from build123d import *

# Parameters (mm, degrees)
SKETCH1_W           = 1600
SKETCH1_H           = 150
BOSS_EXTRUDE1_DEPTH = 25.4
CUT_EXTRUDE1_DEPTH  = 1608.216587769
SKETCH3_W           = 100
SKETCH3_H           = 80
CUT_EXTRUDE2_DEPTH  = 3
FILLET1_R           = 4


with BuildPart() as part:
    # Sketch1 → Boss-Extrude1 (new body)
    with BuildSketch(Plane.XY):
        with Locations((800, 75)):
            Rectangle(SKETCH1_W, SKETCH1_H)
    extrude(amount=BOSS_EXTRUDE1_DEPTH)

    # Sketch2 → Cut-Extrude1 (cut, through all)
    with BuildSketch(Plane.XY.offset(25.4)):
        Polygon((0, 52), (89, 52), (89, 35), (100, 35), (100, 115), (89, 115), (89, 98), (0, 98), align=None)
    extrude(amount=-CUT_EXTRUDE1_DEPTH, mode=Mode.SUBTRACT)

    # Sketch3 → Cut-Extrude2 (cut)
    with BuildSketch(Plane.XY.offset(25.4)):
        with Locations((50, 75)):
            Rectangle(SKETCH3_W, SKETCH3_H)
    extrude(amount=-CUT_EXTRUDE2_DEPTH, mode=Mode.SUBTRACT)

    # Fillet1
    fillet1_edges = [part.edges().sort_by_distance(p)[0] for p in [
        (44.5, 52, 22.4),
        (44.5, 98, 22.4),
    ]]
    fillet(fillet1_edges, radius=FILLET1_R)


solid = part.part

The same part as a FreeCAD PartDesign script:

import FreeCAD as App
import Part
import Sketcher

V = App.Vector


def edges_at(feature, points):
    """Names of the edges that pass closest to the given points."""
    edges = feature.Shape.Edges
    near = lambda p: min(range(len(edges)), key=lambda i: edges[i].distToShape(Part.Vertex(*p))[0])
    return sorted({f"Edge{near(p) + 1}" for p in points})


def add_polygon(sketch, points):
    """Adds a closed chain of lines whose ends are joined by coincident constraints."""
    first, n = sketch.GeometryCount, len(points)
    for a, b in zip(points, points[1:] + points[:1]):
        sketch.addGeometry(Part.LineSegment(App.Vector(*a, 0), App.Vector(*b, 0)), False)
    for i in range(n):
        sketch.addConstraint(Sketcher.Constraint("Coincident", first + i, 2, first + (i + 1) % n, 1))

doc = App.newDocument("Part")
body = doc.addObject("PartDesign::Body", "Body")

sketch1 = body.newObject("Sketcher::SketchObject", "Sketch")
sketch1.AttachmentSupport = (doc.getObject("XY_Plane"), [""])
sketch1.MapMode = "FlatFace"
add_polygon(sketch1, [(0, 150), (0, 0), (1600, 0), (1600, 150)])
sketch1.addConstraint([
    Sketcher.Constraint("Vertical", 0),
    Sketcher.Constraint("Horizontal", 1),
    Sketcher.Constraint("Vertical", 2),
    Sketcher.Constraint("Horizontal", 3),
    Sketcher.Constraint("Coincident", 0, 2, -1, 1),
    Sketcher.Constraint("DistanceX", 1, 1, 1, 2, 1600.0),
    Sketcher.Constraint("DistanceY", 0, 2, 0, 1, 150.0),
])
pad1 = body.newObject("PartDesign::Pad", "Pad")
pad1.Profile = sketch1
pad1.Length = 25.4

sketch2 = body.newObject("Sketcher::SketchObject", "Sketch001")
sketch2.AttachmentSupport = (doc.getObject("XY_Plane"), [""])
sketch2.MapMode = "FlatFace"
sketch2.AttachmentOffset = App.Placement(V(0, 0, 25.4), App.Rotation())
add_polygon(sketch2, [(0, 52), (89, 52), (89, 35), (100, 35), (100, 115), (89, 115), (89, 98), (0, 98)])
sketch2.addConstraint([
    Sketcher.Constraint("Horizontal", 0),
    Sketcher.Constraint("Vertical", 1),
    Sketcher.Constraint("Horizontal", 2),
    Sketcher.Constraint("Vertical", 3),
    Sketcher.Constraint("Horizontal", 4),
    Sketcher.Constraint("Vertical", 5),
    Sketcher.Constraint("Horizontal", 6),
    Sketcher.Constraint("Vertical", 7),
    Sketcher.Constraint("PointOnObject", 6, 2, -2),
    Sketcher.Constraint("Vertical", 1, 2, 4, 2),
    Sketcher.Constraint("Equal", 1, 5),
    Sketcher.Constraint("DistanceX", 0, 1, 0, 2, 89.0),
    Sketcher.Constraint("DistanceX", 2, 1, 2, 2, 11.0),
    Sketcher.Constraint("DistanceY", 1, 2, 1, 1, 17.0),
    Sketcher.Constraint("DistanceY", 3, 1, 3, 2, 80.0),
    Sketcher.Constraint("DistanceY", -1, 1, 0, 2, 52.0),
])
pocket1 = body.newObject("PartDesign::Pocket", "Pocket")
pocket1.Profile = sketch2
pocket1.Type = "ThroughAll"

sketch3 = body.newObject("Sketcher::SketchObject", "Sketch002")
sketch3.AttachmentSupport = (doc.getObject("XY_Plane"), [""])
sketch3.MapMode = "FlatFace"
sketch3.AttachmentOffset = App.Placement(V(0, 0, 25.4), App.Rotation())
add_polygon(sketch3, [(0, 115), (0, 35), (100, 35), (100, 115)])
sketch3.addConstraint([
    Sketcher.Constraint("Vertical", 0),
    Sketcher.Constraint("Horizontal", 1),
    Sketcher.Constraint("Vertical", 2),
    Sketcher.Constraint("Horizontal", 3),
    Sketcher.Constraint("PointOnObject", 0, 2, -2),
    Sketcher.Constraint("DistanceX", 1, 1, 1, 2, 100.0),
    Sketcher.Constraint("DistanceY", 0, 2, 0, 1, 80.0),
    Sketcher.Constraint("DistanceY", -1, 1, 0, 2, 35.0),
])
pocket2 = body.newObject("PartDesign::Pocket", "Pocket001")
pocket2.Profile = sketch3
pocket2.Length = 3
doc.recompute()

fillet = body.newObject("PartDesign::Fillet", "Fillet")
fillet.Base = (pocket2, edges_at(pocket2, [(44.5, 52, 22.4), (44.5, 98, 22.4)]))
fillet.Radius = 4

doc.recompute()
